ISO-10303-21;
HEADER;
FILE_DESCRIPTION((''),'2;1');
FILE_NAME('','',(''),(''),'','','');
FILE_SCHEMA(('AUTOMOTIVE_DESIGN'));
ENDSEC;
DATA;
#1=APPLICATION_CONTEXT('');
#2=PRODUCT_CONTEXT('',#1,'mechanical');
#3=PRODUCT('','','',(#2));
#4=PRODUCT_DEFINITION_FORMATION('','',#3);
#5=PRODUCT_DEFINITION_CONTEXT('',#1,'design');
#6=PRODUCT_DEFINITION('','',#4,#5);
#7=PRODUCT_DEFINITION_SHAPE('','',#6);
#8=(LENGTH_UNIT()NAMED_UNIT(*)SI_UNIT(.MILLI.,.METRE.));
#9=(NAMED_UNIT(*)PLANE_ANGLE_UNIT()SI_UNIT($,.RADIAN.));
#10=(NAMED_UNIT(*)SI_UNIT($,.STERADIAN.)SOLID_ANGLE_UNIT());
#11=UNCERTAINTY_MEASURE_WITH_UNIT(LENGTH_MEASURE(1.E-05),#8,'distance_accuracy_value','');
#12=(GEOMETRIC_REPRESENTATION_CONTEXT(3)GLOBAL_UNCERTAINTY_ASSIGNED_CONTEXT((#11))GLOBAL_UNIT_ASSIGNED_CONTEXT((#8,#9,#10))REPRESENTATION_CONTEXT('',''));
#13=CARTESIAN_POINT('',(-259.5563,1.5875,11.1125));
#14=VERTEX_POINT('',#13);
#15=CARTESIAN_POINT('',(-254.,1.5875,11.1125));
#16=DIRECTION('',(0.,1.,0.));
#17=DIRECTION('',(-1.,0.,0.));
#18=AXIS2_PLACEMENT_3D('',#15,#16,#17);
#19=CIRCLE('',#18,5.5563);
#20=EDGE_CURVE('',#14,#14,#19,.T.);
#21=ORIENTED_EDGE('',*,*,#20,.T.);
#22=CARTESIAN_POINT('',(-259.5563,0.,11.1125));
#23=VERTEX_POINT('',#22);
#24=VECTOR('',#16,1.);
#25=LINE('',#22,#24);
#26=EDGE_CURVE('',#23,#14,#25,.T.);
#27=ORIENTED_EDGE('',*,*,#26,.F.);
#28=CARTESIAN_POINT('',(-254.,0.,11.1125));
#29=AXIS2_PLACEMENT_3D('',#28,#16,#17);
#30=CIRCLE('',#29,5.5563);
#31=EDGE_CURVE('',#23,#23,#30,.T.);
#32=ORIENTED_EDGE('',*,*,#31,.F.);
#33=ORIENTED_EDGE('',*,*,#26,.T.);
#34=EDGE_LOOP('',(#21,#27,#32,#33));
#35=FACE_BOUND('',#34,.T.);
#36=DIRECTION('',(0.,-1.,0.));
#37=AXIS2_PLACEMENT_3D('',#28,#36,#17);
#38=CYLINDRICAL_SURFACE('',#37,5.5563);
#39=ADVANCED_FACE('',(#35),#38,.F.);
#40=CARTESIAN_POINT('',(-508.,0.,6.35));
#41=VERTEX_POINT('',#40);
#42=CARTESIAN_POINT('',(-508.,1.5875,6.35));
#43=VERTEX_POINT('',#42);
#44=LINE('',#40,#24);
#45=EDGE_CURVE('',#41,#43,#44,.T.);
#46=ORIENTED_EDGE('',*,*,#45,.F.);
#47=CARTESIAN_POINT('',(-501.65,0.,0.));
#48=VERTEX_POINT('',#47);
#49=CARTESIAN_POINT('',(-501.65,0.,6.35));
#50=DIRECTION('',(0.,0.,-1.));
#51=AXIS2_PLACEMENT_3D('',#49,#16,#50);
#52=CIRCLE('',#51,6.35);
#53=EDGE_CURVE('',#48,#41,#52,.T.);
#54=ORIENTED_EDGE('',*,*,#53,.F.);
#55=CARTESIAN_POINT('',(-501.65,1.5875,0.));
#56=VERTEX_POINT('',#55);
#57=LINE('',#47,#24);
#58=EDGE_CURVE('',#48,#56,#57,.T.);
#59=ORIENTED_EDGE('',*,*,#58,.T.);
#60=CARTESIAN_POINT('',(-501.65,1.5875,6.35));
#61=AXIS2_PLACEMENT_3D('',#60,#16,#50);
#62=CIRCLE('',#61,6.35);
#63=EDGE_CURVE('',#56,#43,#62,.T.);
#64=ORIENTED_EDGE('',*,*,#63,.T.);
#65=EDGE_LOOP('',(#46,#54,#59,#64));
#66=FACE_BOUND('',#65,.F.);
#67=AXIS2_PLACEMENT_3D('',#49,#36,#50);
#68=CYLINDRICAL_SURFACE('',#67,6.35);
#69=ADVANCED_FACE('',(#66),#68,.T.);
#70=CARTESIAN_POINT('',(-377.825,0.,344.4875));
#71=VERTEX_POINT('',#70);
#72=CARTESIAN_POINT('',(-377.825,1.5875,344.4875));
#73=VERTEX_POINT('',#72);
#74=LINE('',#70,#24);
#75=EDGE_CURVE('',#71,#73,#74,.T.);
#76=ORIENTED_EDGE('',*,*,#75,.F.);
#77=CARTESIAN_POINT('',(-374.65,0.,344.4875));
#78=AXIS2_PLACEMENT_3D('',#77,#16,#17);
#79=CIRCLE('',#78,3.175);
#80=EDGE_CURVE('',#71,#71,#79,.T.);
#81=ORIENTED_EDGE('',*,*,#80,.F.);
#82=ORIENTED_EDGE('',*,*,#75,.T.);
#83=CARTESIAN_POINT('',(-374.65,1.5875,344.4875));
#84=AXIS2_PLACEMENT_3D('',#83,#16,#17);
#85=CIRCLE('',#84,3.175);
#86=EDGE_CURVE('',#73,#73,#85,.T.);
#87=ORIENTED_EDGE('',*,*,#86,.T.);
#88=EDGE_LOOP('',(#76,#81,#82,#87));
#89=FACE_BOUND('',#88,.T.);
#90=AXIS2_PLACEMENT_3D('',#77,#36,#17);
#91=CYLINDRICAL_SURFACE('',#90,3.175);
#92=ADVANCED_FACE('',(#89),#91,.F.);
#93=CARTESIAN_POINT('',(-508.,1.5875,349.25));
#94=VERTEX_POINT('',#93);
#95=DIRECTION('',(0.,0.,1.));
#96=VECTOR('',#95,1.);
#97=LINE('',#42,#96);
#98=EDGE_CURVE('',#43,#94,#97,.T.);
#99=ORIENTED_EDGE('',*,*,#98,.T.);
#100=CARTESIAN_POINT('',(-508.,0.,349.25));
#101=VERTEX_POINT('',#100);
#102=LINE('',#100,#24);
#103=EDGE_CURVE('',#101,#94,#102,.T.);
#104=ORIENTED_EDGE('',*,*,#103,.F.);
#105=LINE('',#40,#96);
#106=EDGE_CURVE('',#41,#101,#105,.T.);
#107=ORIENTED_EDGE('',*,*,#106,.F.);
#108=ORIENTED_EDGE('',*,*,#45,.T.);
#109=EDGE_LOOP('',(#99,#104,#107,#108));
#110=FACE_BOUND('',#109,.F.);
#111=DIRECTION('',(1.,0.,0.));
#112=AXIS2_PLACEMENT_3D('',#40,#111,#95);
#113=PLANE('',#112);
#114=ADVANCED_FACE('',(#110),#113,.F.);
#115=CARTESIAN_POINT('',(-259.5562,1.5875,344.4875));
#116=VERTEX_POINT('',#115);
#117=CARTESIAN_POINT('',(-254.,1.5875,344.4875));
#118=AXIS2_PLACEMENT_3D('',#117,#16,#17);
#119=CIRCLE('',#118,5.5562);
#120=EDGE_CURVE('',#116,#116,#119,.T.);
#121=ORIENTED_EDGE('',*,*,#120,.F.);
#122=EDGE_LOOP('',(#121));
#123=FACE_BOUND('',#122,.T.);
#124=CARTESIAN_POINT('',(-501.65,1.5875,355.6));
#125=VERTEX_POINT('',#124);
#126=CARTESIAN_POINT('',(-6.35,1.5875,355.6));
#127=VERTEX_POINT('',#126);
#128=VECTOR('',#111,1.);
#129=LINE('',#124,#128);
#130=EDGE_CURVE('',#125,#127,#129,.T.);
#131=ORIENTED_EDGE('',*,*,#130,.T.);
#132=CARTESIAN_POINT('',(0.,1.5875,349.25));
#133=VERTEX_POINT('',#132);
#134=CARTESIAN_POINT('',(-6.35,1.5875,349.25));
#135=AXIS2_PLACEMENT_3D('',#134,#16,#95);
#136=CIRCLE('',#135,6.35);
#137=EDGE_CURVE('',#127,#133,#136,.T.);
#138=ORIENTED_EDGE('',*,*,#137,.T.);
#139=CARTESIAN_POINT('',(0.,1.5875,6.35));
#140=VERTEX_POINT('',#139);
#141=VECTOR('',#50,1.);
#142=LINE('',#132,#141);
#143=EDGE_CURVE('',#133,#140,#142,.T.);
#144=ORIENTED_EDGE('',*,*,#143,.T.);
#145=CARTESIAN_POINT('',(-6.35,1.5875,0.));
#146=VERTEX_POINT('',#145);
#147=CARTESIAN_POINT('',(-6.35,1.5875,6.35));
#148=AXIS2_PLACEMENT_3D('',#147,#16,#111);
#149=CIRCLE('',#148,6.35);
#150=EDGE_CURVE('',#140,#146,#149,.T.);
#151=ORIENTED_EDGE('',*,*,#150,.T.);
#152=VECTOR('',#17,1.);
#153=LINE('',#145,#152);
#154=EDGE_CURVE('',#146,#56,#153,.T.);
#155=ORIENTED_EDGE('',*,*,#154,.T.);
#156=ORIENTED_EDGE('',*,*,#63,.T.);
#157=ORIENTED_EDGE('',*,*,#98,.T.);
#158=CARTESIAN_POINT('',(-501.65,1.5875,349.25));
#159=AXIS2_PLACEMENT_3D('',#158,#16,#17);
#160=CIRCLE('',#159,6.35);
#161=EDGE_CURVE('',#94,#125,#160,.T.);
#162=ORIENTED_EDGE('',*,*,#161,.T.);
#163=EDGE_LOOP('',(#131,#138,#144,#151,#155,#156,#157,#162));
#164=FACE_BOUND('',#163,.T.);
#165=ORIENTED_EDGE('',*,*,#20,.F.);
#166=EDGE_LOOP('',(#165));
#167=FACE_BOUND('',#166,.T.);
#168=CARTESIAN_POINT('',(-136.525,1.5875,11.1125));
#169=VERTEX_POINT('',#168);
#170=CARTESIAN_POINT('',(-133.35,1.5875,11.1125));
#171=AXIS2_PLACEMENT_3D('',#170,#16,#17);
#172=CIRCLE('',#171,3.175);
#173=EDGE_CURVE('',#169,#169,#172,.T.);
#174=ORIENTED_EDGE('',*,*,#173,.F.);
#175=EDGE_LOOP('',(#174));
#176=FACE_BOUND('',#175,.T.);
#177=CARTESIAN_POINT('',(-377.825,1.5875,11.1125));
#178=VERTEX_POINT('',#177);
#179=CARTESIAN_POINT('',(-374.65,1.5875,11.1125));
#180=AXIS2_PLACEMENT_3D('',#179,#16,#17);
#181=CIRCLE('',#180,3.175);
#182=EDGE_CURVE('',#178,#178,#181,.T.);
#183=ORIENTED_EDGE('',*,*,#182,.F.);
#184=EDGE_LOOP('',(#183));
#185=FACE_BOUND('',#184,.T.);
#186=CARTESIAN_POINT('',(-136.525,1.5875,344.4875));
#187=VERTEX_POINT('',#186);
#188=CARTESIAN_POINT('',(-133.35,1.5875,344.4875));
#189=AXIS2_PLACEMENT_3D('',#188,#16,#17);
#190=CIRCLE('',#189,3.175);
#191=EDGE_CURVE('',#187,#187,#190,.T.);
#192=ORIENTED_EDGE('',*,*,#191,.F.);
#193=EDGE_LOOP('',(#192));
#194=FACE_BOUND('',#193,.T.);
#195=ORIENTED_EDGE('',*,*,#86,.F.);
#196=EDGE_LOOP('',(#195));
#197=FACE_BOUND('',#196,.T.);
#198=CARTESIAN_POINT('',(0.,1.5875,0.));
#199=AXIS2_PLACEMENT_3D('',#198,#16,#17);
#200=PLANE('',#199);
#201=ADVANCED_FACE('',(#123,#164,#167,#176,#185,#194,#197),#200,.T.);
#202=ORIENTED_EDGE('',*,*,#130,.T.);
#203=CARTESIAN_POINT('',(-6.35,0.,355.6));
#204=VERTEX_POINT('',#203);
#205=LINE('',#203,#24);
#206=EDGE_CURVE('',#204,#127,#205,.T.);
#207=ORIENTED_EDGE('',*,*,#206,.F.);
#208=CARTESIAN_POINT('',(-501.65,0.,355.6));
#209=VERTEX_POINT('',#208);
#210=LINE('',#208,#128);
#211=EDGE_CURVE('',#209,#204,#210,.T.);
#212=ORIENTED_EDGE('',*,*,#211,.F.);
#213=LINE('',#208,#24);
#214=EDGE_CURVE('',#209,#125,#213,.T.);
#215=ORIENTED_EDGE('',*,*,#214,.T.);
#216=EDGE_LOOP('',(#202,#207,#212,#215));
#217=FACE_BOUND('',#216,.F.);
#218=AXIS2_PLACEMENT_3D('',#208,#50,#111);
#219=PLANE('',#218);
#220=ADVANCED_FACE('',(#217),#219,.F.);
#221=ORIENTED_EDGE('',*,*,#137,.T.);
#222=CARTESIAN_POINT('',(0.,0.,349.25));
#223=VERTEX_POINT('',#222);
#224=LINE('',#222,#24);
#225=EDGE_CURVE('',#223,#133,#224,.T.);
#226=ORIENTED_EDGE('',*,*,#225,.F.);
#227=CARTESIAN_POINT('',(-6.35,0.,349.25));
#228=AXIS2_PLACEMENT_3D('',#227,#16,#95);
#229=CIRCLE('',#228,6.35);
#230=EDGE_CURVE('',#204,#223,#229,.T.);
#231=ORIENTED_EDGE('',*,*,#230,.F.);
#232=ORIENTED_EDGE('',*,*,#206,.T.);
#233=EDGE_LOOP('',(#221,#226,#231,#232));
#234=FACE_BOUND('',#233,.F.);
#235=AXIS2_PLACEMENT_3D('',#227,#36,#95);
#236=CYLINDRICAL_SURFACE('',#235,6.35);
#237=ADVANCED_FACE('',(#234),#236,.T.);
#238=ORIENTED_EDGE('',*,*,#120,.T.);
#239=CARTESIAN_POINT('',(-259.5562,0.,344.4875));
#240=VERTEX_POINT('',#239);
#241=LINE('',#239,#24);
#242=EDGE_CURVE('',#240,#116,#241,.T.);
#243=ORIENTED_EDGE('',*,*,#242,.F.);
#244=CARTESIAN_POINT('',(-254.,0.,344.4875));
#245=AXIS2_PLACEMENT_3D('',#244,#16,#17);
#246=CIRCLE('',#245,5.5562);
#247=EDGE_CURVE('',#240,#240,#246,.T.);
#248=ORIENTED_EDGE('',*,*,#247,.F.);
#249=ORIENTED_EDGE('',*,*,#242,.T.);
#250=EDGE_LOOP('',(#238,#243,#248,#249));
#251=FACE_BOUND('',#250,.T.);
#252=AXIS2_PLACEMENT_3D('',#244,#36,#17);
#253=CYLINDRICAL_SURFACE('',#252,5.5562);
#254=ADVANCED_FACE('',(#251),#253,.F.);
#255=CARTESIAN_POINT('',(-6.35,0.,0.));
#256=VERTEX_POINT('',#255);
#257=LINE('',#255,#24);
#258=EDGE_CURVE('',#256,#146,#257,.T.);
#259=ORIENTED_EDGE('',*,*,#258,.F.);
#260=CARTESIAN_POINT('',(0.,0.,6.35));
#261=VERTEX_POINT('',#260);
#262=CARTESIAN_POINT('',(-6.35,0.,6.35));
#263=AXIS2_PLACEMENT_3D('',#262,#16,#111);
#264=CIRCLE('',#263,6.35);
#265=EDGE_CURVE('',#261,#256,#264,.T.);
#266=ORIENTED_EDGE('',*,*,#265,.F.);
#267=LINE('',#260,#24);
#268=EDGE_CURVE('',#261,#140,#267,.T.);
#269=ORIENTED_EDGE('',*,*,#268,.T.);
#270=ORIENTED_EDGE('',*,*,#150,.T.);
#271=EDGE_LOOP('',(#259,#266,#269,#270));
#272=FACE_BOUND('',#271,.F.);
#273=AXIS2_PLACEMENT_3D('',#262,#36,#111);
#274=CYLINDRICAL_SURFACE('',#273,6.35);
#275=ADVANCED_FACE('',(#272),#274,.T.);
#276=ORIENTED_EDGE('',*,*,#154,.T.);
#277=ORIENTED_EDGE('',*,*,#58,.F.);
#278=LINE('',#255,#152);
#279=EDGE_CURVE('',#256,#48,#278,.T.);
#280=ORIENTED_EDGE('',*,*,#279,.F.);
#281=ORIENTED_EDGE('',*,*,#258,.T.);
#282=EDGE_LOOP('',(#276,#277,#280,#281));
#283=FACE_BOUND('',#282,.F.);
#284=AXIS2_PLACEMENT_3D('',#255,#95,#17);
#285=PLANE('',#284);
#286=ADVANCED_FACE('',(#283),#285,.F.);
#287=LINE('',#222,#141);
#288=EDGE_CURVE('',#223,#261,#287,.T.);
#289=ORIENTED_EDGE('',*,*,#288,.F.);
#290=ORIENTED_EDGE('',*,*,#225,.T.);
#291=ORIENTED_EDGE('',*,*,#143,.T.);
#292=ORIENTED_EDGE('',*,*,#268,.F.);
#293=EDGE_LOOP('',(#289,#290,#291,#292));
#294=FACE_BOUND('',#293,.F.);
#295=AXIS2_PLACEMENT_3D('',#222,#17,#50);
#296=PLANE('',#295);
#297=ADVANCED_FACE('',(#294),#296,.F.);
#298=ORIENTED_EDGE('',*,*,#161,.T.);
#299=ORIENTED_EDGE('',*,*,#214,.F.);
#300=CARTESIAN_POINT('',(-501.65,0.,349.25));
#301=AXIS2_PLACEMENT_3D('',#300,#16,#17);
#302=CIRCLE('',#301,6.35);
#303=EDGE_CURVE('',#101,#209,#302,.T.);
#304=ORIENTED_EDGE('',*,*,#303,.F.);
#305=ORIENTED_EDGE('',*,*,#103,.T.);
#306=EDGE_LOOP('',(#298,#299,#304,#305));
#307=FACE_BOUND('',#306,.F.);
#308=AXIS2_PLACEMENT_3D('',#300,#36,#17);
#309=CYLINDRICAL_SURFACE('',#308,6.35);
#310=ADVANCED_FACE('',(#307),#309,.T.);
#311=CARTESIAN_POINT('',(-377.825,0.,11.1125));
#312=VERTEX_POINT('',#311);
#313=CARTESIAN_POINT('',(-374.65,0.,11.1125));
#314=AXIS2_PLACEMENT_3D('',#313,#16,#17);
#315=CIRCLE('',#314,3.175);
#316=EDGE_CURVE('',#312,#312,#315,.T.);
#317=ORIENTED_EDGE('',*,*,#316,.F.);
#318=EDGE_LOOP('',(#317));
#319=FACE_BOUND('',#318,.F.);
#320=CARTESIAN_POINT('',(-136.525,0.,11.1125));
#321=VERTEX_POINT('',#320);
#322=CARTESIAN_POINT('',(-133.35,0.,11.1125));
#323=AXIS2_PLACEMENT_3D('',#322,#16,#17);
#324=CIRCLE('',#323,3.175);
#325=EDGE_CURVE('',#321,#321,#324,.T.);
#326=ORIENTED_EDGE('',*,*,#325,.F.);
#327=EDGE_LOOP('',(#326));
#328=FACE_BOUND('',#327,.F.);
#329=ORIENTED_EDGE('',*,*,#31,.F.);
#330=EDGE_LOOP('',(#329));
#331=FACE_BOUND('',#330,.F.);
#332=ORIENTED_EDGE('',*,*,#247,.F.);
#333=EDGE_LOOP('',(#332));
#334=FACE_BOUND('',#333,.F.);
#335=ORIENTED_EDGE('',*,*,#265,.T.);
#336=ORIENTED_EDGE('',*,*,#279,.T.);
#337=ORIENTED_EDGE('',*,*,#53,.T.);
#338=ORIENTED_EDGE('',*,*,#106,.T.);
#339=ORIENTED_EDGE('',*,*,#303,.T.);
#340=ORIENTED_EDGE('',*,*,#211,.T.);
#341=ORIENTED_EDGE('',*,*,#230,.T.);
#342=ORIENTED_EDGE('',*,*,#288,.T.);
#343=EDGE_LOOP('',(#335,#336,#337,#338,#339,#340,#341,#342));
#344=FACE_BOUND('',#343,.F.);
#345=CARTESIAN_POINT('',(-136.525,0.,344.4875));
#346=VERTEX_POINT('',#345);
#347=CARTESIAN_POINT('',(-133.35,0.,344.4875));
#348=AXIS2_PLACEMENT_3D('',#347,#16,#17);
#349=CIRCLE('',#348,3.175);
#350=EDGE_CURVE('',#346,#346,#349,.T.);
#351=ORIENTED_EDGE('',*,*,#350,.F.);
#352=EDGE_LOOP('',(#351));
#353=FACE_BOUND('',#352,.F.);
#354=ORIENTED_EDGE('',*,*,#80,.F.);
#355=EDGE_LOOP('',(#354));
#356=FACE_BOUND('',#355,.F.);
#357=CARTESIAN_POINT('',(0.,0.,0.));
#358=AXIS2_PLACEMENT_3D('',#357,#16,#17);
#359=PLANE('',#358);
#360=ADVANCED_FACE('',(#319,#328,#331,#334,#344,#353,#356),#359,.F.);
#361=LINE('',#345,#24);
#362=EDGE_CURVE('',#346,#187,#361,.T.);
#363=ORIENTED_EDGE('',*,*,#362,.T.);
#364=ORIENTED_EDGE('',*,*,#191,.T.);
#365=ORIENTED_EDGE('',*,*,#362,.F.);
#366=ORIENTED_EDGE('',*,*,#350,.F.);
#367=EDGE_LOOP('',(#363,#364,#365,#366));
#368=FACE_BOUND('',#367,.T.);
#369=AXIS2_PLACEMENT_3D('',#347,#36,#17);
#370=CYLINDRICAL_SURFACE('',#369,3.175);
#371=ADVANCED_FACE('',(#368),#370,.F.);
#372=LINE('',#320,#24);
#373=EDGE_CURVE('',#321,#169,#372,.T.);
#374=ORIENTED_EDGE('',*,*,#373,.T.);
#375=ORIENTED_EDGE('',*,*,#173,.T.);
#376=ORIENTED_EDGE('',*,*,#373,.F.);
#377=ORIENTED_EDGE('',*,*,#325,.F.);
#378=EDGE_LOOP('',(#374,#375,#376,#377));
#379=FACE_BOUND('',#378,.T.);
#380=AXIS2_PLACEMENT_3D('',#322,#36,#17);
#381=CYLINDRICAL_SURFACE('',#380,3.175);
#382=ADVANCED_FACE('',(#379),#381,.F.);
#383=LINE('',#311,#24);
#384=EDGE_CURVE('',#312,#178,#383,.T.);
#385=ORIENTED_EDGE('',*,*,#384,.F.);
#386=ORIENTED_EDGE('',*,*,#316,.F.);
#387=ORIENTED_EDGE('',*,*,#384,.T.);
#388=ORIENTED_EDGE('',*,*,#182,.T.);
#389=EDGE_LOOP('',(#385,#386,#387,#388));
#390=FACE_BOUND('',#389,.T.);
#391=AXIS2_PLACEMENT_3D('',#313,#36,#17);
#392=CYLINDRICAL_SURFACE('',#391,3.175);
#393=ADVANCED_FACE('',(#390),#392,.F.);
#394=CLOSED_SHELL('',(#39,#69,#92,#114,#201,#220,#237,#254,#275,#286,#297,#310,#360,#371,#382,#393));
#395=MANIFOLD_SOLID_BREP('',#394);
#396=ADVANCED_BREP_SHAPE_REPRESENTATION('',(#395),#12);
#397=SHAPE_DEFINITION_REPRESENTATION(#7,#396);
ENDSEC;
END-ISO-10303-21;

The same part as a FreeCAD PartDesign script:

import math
import FreeCAD as App
import Part
import Sketcher
Q = App.Units.Quantity

doc = App.newDocument("Part")
body = doc.addObject("PartDesign::Body", "Body")

# Sketch on XZ plane
sketch1 = body.newObject("Sketcher::SketchObject", "Sketch")
sketch1.AttachmentSupport = (doc.getObject("XZ_Plane"), [""])
sketch1.MapMode = "FlatFace"
sketch1.addGeometry([
    Part.ArcOfCircle(Part.Circle(App.Vector(-6.35, 6.35, 0), App.Vector(0, 0, 1), 6.35), math.radians(-90), math.radians(0)),  # 0
    Part.LineSegment(App.Vector(-6.35, 0, 0), App.Vector(-501.65, 0, 0)),  # 1
    Part.ArcOfCircle(Part.Circle(App.Vector(-501.65, 6.35, 0), App.Vector(0, 0, 1), 6.35), math.radians(180), math.radians(270)),  # 2
    Part.LineSegment(App.Vector(-508, 6.35, 0), App.Vector(-508, 349.25, 0)),  # 3
    Part.ArcOfCircle(Part.Circle(App.Vector(-501.65, 349.25, 0), App.Vector(0, 0, 1), 6.35), math.radians(90), math.radians(180)),  # 4
    Part.LineSegment(App.Vector(-501.65, 355.6, 0), App.Vector(-6.35, 355.6, 0)),  # 5
    Part.ArcOfCircle(Part.Circle(App.Vector(-6.35, 349.25, 0), App.Vector(0, 0, 1), 6.35), math.radians(0), math.radians(90)),  # 6
    Part.LineSegment(App.Vector(0, 349.25, 0), App.Vector(0, 6.35, 0)),  # 7
    Part.Circle(App.Vector(-133.35, 11.1125, 0), App.Vector(0, 0, 1), 3.175),  # 8
    Part.Circle(App.Vector(-254, 11.1125, 0), App.Vector(0, 0, 1), 5.5563),  # 9
    Part.Circle(App.Vector(-374.65, 11.1125, 0), App.Vector(0, 0, 1), 3.175),  # 10
    Part.Circle(App.Vector(-133.35, 344.4875, 0), App.Vector(0, 0, 1), 3.175),  # 11
    Part.Circle(App.Vector(-254, 344.4875, 0), App.Vector(0, 0, 1), 5.5562),  # 12
    Part.Circle(App.Vector(-374.65, 344.4875, 0), App.Vector(0, 0, 1), 3.175),  # 13
], False)
sketch1.addConstraint([
    Sketcher.Constraint("Tangent", 0, 1, 1, 1),
    Sketcher.Constraint("Tangent", 1, 2, 2, 2),
    Sketcher.Constraint("Tangent", 2, 1, 3, 1),
    Sketcher.Constraint("Tangent", 3, 2, 4, 2),
    Sketcher.Constraint("Tangent", 4, 1, 5, 1),
    Sketcher.Constraint("Tangent", 5, 2, 6, 2),
    Sketcher.Constraint("Tangent", 6, 1, 7, 1),
    Sketcher.Constraint("Tangent", 7, 2, 0, 2),
    Sketcher.Constraint("Horizontal", 1),
    Sketcher.Constraint("Vertical", 3),
    Sketcher.Constraint("Horizontal", 5),
    Sketcher.Constraint("Vertical", 7),
    Sketcher.Constraint("Equal", 0, 2),
    Sketcher.Constraint("Equal", 2, 4),
    Sketcher.Constraint("Equal", 4, 6),
    Sketcher.Constraint("Equal", 8, 10),
    Sketcher.Constraint("Equal", 10, 11),
    Sketcher.Constraint("Equal", 9, 12),
    Sketcher.Constraint("Equal", 11, 13),
    Sketcher.Constraint("PointOnObject", 0, 1, -1),
    Sketcher.Constraint("PointOnObject", 6, 1, -2),
    Sketcher.Constraint("Horizontal", 8, 3, 9, 3),
    Sketcher.Constraint("Horizontal", 9, 3, 10, 3),
    Sketcher.Constraint("Horizontal", 11, 3, 12, 3),
    Sketcher.Constraint("Horizontal", 12, 3, 13, 3),
    Sketcher.Constraint("Vertical", 8, 3, 11, 3),
    Sketcher.Constraint("Vertical", 9, 3, 12, 3),
    Sketcher.Constraint("Vertical", 10, 3, 13, 3),
    Sketcher.Constraint("Diameter", 8, Q("0.25 in")),
    Sketcher.Constraint("Radius", 0, Q("0.25 in")),
    Sketcher.Constraint("Diameter", 9, Q("0.4375 in")),
    Sketcher.Constraint("DistanceX", 2, 1, -1, 1, Q("20 in")),
    Sketcher.Constraint("DistanceY", -1, 1, 4, 1, Q("14 in")),
    Sketcher.Constraint("DistanceX", 10, 3, 8, 3, Q("9.5 in")),
    Sketcher.Constraint("DistanceY", -1, 1, 8, 3, Q("0.4375 in")),
    Sketcher.Constraint("DistanceX", 9, 3, -1, 1, Q("10 in")),
    Sketcher.Constraint("DistanceX", 8, 3, 0, 3, Q("5 in")),
    Sketcher.Constraint("DistanceY", 8, 3, 11, 3, Q("13.125 in")),
])
pad1 = body.newObject("PartDesign::Pad", "Pad")
pad1.Profile = sketch1
pad1.Length = Q("0.0625 in")
pad1.Reversed = True

doc.recompute()
